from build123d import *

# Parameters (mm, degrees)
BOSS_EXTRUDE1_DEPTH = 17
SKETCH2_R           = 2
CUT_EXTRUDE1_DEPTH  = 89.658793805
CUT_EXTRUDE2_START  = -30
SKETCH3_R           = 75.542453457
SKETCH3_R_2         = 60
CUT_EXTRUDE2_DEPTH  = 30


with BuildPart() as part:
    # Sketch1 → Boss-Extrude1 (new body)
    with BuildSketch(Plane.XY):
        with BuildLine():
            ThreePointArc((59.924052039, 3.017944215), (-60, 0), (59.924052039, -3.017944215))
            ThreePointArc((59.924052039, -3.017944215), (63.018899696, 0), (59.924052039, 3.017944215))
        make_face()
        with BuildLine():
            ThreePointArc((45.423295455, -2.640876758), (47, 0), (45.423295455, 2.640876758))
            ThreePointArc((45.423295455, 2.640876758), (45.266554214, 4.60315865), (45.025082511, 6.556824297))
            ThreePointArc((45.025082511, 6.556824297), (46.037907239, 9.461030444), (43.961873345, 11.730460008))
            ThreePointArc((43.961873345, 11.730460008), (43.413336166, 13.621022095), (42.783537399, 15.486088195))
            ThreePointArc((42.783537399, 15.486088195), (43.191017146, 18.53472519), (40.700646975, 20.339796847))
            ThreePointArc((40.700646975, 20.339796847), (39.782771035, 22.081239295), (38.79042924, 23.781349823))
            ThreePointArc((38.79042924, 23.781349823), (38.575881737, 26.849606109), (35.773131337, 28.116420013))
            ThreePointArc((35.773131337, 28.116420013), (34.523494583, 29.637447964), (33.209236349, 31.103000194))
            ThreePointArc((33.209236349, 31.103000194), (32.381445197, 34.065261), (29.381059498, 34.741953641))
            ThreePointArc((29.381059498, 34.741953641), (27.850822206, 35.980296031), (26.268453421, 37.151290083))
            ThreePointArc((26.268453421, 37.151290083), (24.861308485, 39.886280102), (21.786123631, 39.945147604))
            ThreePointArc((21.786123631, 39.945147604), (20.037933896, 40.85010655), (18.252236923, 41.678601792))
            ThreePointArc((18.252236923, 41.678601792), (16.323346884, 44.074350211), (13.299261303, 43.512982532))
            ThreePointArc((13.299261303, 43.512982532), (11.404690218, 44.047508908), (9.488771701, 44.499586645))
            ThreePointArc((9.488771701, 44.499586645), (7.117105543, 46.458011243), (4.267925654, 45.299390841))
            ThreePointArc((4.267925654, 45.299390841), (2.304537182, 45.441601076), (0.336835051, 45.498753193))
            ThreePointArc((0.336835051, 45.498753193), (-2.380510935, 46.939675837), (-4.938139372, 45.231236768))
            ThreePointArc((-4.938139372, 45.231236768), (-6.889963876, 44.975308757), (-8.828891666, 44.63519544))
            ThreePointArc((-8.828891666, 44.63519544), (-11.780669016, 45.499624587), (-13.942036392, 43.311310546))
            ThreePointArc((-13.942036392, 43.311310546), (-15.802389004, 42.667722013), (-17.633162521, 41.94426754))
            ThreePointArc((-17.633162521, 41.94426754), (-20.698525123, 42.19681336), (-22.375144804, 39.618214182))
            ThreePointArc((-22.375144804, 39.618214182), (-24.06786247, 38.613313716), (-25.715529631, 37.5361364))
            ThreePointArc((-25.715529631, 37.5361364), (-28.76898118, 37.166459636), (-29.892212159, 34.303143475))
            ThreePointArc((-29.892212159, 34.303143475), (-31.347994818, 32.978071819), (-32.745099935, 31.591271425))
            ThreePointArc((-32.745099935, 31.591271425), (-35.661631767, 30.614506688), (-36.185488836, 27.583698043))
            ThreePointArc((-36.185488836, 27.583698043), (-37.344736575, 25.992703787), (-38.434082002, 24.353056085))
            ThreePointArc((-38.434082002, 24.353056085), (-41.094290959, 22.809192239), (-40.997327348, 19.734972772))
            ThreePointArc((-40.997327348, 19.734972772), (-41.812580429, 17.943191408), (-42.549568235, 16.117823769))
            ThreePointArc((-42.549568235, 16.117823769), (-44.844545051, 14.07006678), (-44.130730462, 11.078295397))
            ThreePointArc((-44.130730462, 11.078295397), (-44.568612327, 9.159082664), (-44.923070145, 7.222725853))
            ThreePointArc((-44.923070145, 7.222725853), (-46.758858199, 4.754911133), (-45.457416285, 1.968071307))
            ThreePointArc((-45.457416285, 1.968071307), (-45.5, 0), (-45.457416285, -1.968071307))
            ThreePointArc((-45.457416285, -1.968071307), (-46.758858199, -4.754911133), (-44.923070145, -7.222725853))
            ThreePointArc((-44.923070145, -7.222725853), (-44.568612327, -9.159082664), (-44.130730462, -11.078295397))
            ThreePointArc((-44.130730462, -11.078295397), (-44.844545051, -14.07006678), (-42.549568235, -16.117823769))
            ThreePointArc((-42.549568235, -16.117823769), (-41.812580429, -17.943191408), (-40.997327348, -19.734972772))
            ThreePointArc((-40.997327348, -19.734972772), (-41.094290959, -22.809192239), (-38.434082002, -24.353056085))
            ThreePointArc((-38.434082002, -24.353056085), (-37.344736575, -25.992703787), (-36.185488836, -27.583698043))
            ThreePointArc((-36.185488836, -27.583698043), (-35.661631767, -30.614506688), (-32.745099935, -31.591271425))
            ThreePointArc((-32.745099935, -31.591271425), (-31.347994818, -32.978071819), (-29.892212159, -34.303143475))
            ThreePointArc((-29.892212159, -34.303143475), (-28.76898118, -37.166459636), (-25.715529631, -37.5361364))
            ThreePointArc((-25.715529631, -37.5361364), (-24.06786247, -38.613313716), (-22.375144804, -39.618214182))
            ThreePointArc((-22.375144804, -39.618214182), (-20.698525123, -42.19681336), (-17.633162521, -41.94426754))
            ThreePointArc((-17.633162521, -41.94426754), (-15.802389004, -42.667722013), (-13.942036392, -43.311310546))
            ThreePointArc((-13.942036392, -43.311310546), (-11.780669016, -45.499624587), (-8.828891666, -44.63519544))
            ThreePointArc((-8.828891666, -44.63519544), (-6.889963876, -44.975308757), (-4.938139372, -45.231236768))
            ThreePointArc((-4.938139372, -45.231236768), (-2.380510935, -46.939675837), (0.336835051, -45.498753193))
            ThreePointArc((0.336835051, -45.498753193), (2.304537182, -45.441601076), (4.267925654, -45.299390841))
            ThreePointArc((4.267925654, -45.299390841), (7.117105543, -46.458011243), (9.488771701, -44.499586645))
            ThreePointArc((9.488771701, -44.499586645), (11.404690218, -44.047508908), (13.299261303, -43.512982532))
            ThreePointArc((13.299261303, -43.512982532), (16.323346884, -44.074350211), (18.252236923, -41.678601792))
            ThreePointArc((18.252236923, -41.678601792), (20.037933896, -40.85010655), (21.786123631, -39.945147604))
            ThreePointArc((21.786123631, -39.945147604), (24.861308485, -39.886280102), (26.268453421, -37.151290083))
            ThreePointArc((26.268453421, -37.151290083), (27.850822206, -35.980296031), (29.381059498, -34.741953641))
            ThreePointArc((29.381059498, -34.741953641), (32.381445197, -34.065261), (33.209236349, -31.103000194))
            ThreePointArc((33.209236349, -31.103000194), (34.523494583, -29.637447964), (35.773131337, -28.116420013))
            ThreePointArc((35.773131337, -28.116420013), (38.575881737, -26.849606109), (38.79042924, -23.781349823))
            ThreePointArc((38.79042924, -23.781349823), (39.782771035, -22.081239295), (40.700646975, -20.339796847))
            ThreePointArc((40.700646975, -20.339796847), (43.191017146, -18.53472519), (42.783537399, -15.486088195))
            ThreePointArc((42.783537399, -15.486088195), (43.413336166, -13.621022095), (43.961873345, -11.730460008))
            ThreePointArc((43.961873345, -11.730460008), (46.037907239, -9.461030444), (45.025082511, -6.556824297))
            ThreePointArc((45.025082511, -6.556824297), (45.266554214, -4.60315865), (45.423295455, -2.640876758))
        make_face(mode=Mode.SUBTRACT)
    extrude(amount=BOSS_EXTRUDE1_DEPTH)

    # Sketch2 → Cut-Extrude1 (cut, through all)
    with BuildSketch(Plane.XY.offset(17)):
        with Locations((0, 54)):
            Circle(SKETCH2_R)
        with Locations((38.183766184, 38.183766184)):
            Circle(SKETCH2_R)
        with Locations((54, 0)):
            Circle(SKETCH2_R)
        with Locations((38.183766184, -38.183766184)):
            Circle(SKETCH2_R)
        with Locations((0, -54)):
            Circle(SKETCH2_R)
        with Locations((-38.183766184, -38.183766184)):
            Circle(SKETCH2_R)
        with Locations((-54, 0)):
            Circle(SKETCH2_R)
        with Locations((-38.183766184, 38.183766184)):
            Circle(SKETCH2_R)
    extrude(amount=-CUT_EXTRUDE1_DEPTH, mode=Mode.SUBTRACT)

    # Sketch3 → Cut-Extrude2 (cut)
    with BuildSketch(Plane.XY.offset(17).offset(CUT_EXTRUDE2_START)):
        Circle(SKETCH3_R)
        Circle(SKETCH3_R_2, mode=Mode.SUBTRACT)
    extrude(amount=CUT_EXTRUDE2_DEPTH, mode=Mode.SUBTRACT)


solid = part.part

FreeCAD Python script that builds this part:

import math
import FreeCAD as App
import Part
import Sketcher
from FreeCAD import Vector
Q = App.Units.Quantity

doc = App.newDocument("Part")
params = doc.addObject("Spreadsheet::Sheet", "Params")
for row, (alias, value) in enumerate([
    ("sketch1_radius", "60 mm"),
    ("sketch1_radius2", "3 mm"),
    ("sketch1_radius3", "3 mm"),
    ("sketch1_radius4", "3 mm"),
    ("sketch1_radius5", "3 mm"),
    ("pad1_length", "17 mm"),
    ("sketch2_diameter", "4 mm"),
    ("sketch3_diameter", "120 mm"),
    ("pocket2_length", "30 mm"),
], start=1):
    params.set(f"A{row}", alias)
    params.set(f"B{row}", "=" + value)
    params.setAlias(f"B{row}", alias)

body = doc.addObject("PartDesign::Body", "Body")

sketch1 = body.newObject("Sketcher::SketchObject", "Sketch")
sketch1.AttachmentSupport = (doc.getObject("XY_Plane"), [""])
sketch1.MapMode = "FlatFace"
sketch1.addGeometry(Part.ArcOfCircle(Part.Circle(Vector(0, 0, 0), Vector(0, 0, 1), 60), math.radians(2.883141), math.radians(357.116859)), False)
sketch1.addGeometry(Part.ArcOfCircle(Part.Circle(Vector(60, 0, 0), Vector(0, 0, 1), 3.0189), math.radians(-91.44157), math.radians(91.44157)), False)
sketch1.addGeometry(Part.ArcOfCircle(Part.Circle(Vector(44, 0, 0), Vector(0, 0, 1), 3), math.radians(-61.677638), math.radians(61.677638)), False)
sketch1.addGeometry(Part.ArcOfCircle(Part.Circle(Vector(-0.000001, 0, 0), Vector(0, 0, 1), 45.500001), math.radians(-8.285515), math.radians(-3.327389)), False)
sketch1.addGeometry(Part.ArcOfCircle(Part.Circle(Vector(43.099317, -8.857135, 0), Vector(0, 0, 1), 3), math.radians(-73.290541), math.radians(50.064735)), False)
sketch1.addGeometry(Part.ArcOfCircle(Part.Circle(Vector(0, 0, 0), Vector(0, 0, 1), 45.5), math.radians(-19.898418), math.radians(-14.940292)), False)
sketch1.addGeometry(Part.ArcOfCircle(Part.Circle(Vector(40.434144, -17.351658, 0), Vector(0, 0, 1), 3), math.radians(-84.903444), math.radians(38.451831)), False)
sketch1.addGeometry(Part.ArcOfCircle(Part.Circle(Vector(0, 0, 0), Vector(0, 0, 1), 45.5), math.radians(-31.511321), math.radians(-26.553195)), False)
sketch1.addGeometry(Part.ArcOfCircle(Part.Circle(Vector(36.113591, -25.135801, 0), Vector(0, 0, 1), 3), math.radians(-96.516347), math.radians(26.838928)), False)
sketch1.addGeometry(Part.ArcOfCircle(Part.Circle(Vector(0.000001, 0, 0), Vector(0, 0, 1), 45.499999), math.radians(-43.124224), math.radians(-38.166098)), False)
sketch1.addGeometry(Part.ArcOfCircle(Part.Circle(Vector(30.314544, -31.890883, 0), Vector(0, 0, 1), 3), math.radians(-108.129251), math.radians(15.226025)), False)
sketch1.addGeometry(Part.ArcOfCircle(Part.Circle(Vector(0, 0, 0), Vector(0, 0, 1), 45.5), math.radians(-54.737128), math.radians(-49.779001)), False)
sketch1.addGeometry(Part.ArcOfCircle(Part.Circle(Vector(23.274416, -37.340347, 0), Vector(0, 0, 1), 3), math.radians(-119.742154), math.radians(3.613122)), False)
sketch1.addGeometry(Part.ArcOfCircle(Part.Circle(Vector(0, 0, 0), Vector(0, 0, 1), 45.5), math.radians(-66.350031), math.radians(-61.391905)), False)
sketch1.addGeometry(Part.ArcOfCircle(Part.Circle(Vector(15.281431, -41.261094, 0), Vector(0, 0, 1), 3), math.radians(-131.355057), math.radians(-7.999782)), False)
sketch1.addGeometry(Part.ArcOfCircle(Part.Circle(Vector(0, 0, 0), Vector(0, 0, 1), 45.5), math.radians(-77.962934), math.radians(-73.004808)), False)
sketch1.addGeometry(Part.ArcOfCircle(Part.Circle(Vector(6.662822, -43.492606, 0), Vector(0, 0, 1), 3), math.radians(-142.96796), math.radians(-19.612685)), False)
sketch1.addGeometry(Part.ArcOfCircle(Part.Circle(Vector(0, 0, 0), Vector(0, 0, 1), 45.5), math.radians(-89.575837), math.radians(-84.617711)), False)
sketch1.addGeometry(Part.ArcOfCircle(Part.Circle(Vector(-2.228563, -43.943526, 0), Vector(0, 0, 1), 3), math.radians(-154.580864), math.radians(-31.225588)), False)
sketch1.addGeometry(Part.ArcOfCircle(Part.Circle(Vector(0, 0, 0), Vector(0, 0, 1), 45.5), math.radians(-101.188741), math.radians(-96.230614)), False)
sketch1.addGeometry(Part.ArcOfCircle(Part.Circle(Vector(-11.028711, -42.595393, 0), Vector(0, 0, 1), 3), math.radians(-166.193767), math.radians(-42.838491)), False)
sketch1.addGeometry(Part.ArcOfCircle(Part.Circle(Vector(0, -0.000001, 0), Vector(0, 0, 1), 45.499999), math.radians(-112.801644), math.radians(-107.843518)), False)
sketch1.addGeometry(Part.ArcOfCircle(Part.Circle(Vector(-19.377343, -39.5034, 0), Vector(0, 0, 1), 3), math.radians(-177.80667), math.radians(-54.451394)), False)
sketch1.addGeometry(Part.ArcOfCircle(Part.Circle(Vector(0, 0, 0), Vector(0, 0, 1), 45.5), math.radians(-124.414547), math.radians(-119.456421)), False)
sketch1.addGeometry(Part.ArcOfCircle(Part.Circle(Vector(-26.932663, -34.794132, 0), Vector(0, 0, 1), 3), math.radians(170.580427), math.radians(293.935702)), False)
sketch1.addGeometry(Part.ArcOfCircle(Part.Circle(Vector(0, 0, 0), Vector(0, 0, 1), 45.5), math.radians(-136.02745), math.radians(-131.069324)), False)
sketch1.addGeometry(Part.ArcOfCircle(Part.Circle(Vector(-33.385357, -28.660389, 0), Vector(0, 0, 1), 3), math.radians(158.967524), math.radians(282.322799)), False)
sketch1.addGeometry(Part.ArcOfCircle(Part.Circle(Vector(0, 0, 0), Vector(0, 0, 1), 45.5), math.radians(-147.640353), math.radians(-142.682227)), False)
sketch1.addGeometry(Part.ArcOfCircle(Part.Circle(Vector(-38.471251, -21.353286, 0), Vector(0, 0, 1), 3), math.radians(147.35462), math.radians(270.709896)), False)
sketch1.addGeometry(Part.ArcOfCircle(Part.Circle(Vector(0, 0, 0), Vector(0, 0, 1), 45.5), math.radians(-159.253257), math.radians(-154.29513)), False)
sketch1.addGeometry(Part.ArcOfCircle(Part.Circle(Vector(-41.982127, -13.171977, 0), Vector(0, 0, 1), 3), math.radians(135.741717), math.radians(259.096993)), False)
sketch1.addGeometry(Part.ArcOfCircle(Part.Circle(Vector(0, 0, 0), Vector(0, 0, 1), 45.5), math.radians(-170.86616), math.radians(-165.908034)), False)
sketch1.addGeometry(Part.ArcOfCircle(Part.Circle(Vector(-43.77425, -4.451406, 0), Vector(0, 0, 1), 3), math.radians(124.128814), math.radians(247.484089)), False)
sketch1.addGeometry(Part.ArcOfCircle(Part.Circle(Vector(0, 0, 0), Vector(0, 0, 1), 45.5), math.radians(177.520937), math.radians(182.479063)), False)
sketch1.addGeometry(Part.ArcOfCircle(Part.Circle(Vector(-43.77425, 4.451406, 0), Vector(0, 0, 1), 3), math.radians(112.515911), math.radians(235.871186)), False)
sketch1.addGeometry(Part.ArcOfCircle(Part.Circle(Vector(0, 0, 0), Vector(0, 0, 1), 45.5), math.radians(165.908034), math.radians(170.86616)), False)
sketch1.addGeometry(Part.ArcOfCircle(Part.Circle(Vector(-41.982127, 13.171977, 0), Vector(0, 0, 1), 3), math.radians(100.903007), math.radians(224.258283)), False)
sketch1.addGeometry(Part.ArcOfCircle(Part.Circle(Vector(0, 0, 0), Vector(0, 0, 1), 45.5), math.radians(154.29513), math.radians(159.253257)), False)
sketch1.addGeometry(Part.ArcOfCircle(Part.Circle(Vector(-38.471251, 21.353286, 0), Vector(0, 0, 1), 3), math.radians(89.290104), math.radians(212.64538)), False)
sketch1.addGeometry(Part.ArcOfCircle(Part.Circle(Vector(0, 0, 0), Vector(0, 0, 1), 45.5), math.radians(142.682227), math.radians(147.640353)), False)
sketch1.addGeometry(Part.ArcOfCircle(Part.Circle(Vector(-33.385357, 28.660389, 0), Vector(0, 0, 1), 3), math.radians(77.677201), math.radians(201.032476)), False)
sketch1.addGeometry(Part.ArcOfCircle(Part.Circle(Vector(0, 0, 0), Vector(0, 0, 1), 45.5), math.radians(131.069324), math.radians(136.02745)), False)
sketch1.addGeometry(Part.ArcOfCircle(Part.Circle(Vector(-26.932663, 34.794132, 0), Vector(0, 0, 1), 3), math.radians(66.064298), math.radians(189.419573)), False)
sketch1.addGeometry(Part.ArcOfCircle(Part.Circle(Vector(0, 0, 0), Vector(0, 0, 1), 45.5), math.radians(119.456421), math.radians(124.414547)), False)
sketch1.addGeometry(Part.ArcOfCircle(Part.Circle(Vector(-19.377343, 39.5034, 0), Vector(0, 0, 1), 3), math.radians(54.451394), math.radians(177.80667)), False)
sketch1.addGeometry(Part.ArcOfCircle(Part.Circle(Vector(0, 0.000001, 0), Vector(0, 0, 1), 45.499999), math.radians(107.843518), math.radians(112.801644)), False)
sketch1.addGeometry(Part.ArcOfCircle(Part.Circle(Vector(-11.028711, 42.595393, 0), Vector(0, 0, 1), 3), math.radians(42.838491), math.radians(166.193767)), False)
sketch1.addGeometry(Part.ArcOfCircle(Part.Circle(Vector(0, 0, 0), Vector(0, 0, 1), 45.5), math.radians(96.230614), math.radians(101.188741)), False)
sketch1.addGeometry(Part.ArcOfCircle(Part.Circle(Vector(-2.228563, 43.943526, 0), Vector(0, 0, 1), 3), math.radians(31.225588), math.radians(154.580864)), False)
sketch1.addGeometry(Part.ArcOfCircle(Part.Circle(Vector(0, 0, 0), Vector(0, 0, 1), 45.5), math.radians(84.617711), math.radians(89.575837)), False)
sketch1.addGeometry(Part.ArcOfCircle(Part.Circle(Vector(6.662822, 43.492606, 0), Vector(0, 0, 1), 3), math.radians(19.612685), math.radians(142.96796)), False)
sketch1.addGeometry(Part.ArcOfCircle(Part.Circle(Vector(0, 0, 0), Vector(0, 0, 1), 45.5), math.radians(73.004808), math.radians(77.962934)), False)
sketch1.addGeometry(Part.ArcOfCircle(Part.Circle(Vector(15.281431, 41.261094, 0), Vector(0, 0, 1), 3), math.radians(7.999782), math.radians(131.355057)), False)
sketch1.addGeometry(Part.ArcOfCircle(Part.Circle(Vector(0, 0, 0), Vector(0, 0, 1), 45.5), math.radians(61.391905), math.radians(66.350031)), False)
sketch1.addGeometry(Part.ArcOfCircle(Part.Circle(Vector(23.274416, 37.340347, 0), Vector(0, 0, 1), 3), math.radians(-3.613122), math.radians(119.742154)), False)
sketch1.addGeometry(Part.ArcOfCircle(Part.Circle(Vector(0, 0, 0), Vector(0, 0, 1), 45.5), math.radians(49.779001), math.radians(54.737128)), False)
sketch1.addGeometry(Part.ArcOfCircle(Part.Circle(Vector(30.314544, 31.890883, 0), Vector(0, 0, 1), 3), math.radians(-15.226025), math.radians(108.129251)), False)
sketch1.addGeometry(Part.ArcOfCircle(Part.Circle(Vector(0.000001, 0, 0), Vector(0, 0, 1), 45.499999), math.radians(38.166098), math.radians(43.124224)), False)
sketch1.addGeometry(Part.ArcOfCircle(Part.Circle(Vector(36.113591, 25.135801, 0), Vector(0, 0, 1), 3), math.radians(-26.838928), math.radians(96.516347)), False)
sketch1.addGeometry(Part.ArcOfCircle(Part.Circle(Vector(0, 0, 0), Vector(0, 0, 1), 45.5), math.radians(26.553195), math.radians(31.511321)), False)
sketch1.addGeometry(Part.ArcOfCircle(Part.Circle(Vector(40.434144, 17.351658, 0), Vector(0, 0, 1), 3), math.radians(-38.451831), math.radians(84.903444)), False)
sketch1.addGeometry(Part.ArcOfCircle(Part.Circle(Vector(0, 0, 0), Vector(0, 0, 1), 45.5), math.radians(14.940292), math.radians(19.898418)), False)
sketch1.addGeometry(Part.ArcOfCircle(Part.Circle(Vector(43.099317, 8.857135, 0), Vector(0, 0, 1), 3), math.radians(-50.064735), math.radians(73.290541)), False)
sketch1.addGeometry(Part.ArcOfCircle(Part.Circle(Vector(-0.000001, 0, 0), Vector(0, 0, 1), 45.500001), math.radians(3.327389), math.radians(8.285515)), False)
sketch1.addConstraint(Sketcher.Constraint("Coincident", 0, 1, 1, 2))
sketch1.addConstraint(Sketcher.Constraint("Coincident", 1, 1, 0, 2))
sketch1.addConstraint(Sketcher.Constraint("Coincident", 2, 1, 3, 2))
sketch1.addConstraint(Sketcher.Constraint("Coincident", 3, 1, 4, 2))
sketch1.addConstraint(Sketcher.Constraint("Coincident", 4, 1, 5, 2))
sketch1.addConstraint(Sketcher.Constraint("Coincident", 5, 1, 6, 2))
sketch1.addConstraint(Sketcher.Constraint("Coincident", 6, 1, 7, 2))
sketch1.addConstraint(Sketcher.Constraint("Coincident", 7, 1, 8, 2))
sketch1.addConstraint(Sketcher.Constraint("Coincident", 8, 1, 9, 2))
sketch1.addConstraint(Sketcher.Constraint("Coincident", 9, 1, 10, 2))
sketch1.addConstraint(Sketcher.Constraint("Coincident", 10, 1, 11, 2))
sketch1.addConstraint(Sketcher.Constraint("Coincident", 11, 1, 12, 2))
sketch1.addConstraint(Sketcher.Constraint("Coincident", 12, 1, 13, 2))
sketch1.addConstraint(Sketcher.Constraint("Coincident", 13, 1, 14, 2))
sketch1.addConstraint(Sketcher.Constraint("Coincident", 14, 1, 15, 2))
sketch1.addConstraint(Sketcher.Constraint("Coincident", 15, 1, 16, 2))
sketch1.addConstraint(Sketcher.Constraint("Coincident", 16, 1, 17, 2))
sketch1.addConstraint(Sketcher.Constraint("Coincident", 17, 1, 18, 2))
sketch1.addConstraint(Sketcher.Constraint("Coincident", 18, 1, 19, 2))
sketch1.addConstraint(Sketcher.Constraint("Coincident", 19, 1, 20, 2))
sketch1.addConstraint(Sketcher.Constraint("Coincident", 20, 1, 21, 2))
sketch1.addConstraint(Sketcher.Constraint("Coincident", 21, 1, 22, 2))
sketch1.addConstraint(Sketcher.Constraint("Coincident", 22, 1, 23, 2))
sketch1.addConstraint(Sketcher.Constraint("Coincident", 23, 1, 24, 2))
sketch1.addConstraint(Sketcher.Constraint("Coincident", 24, 1, 25, 2))
sketch1.addConstraint(Sketcher.Constraint("Coincident", 25, 1, 26, 2))
sketch1.addConstraint(Sketcher.Constraint("Coincident", 26, 1, 27, 2))
sketch1.addConstraint(Sketcher.Constraint("Coincident", 27, 1, 28, 2))
sketch1.addConstraint(Sketcher.Constraint("Coincident", 28, 1, 29, 2))
sketch1.addConstraint(Sketcher.Constraint("Coincident", 29, 1, 30, 2))
sketch1.addConstraint(Sketcher.Constraint("Coincident", 30, 1, 31, 2))
sketch1.addConstraint(Sketcher.Constraint("Coincident", 31, 1, 32, 2))
sketch1.addConstraint(Sketcher.Constraint("Coincident", 32, 1, 33, 2))
sketch1.addConstraint(Sketcher.Constraint("Coincident", 33, 1, 34, 2))
sketch1.addConstraint(Sketcher.Constraint("Coincident", 34, 1, 35, 2))
sketch1.addConstraint(Sketcher.Constraint("Coincident", 35, 1, 36, 2))
sketch1.addConstraint(Sketcher.Constraint("Coincident", 36, 1, 37, 2))
sketch1.addConstraint(Sketcher.Constraint("Coincident", 37, 1, 38, 2))
sketch1.addConstraint(Sketcher.Constraint("Coincident", 38, 1, 39, 2))
sketch1.addConstraint(Sketcher.Constraint("Coincident", 39, 1, 40, 2))
sketch1.addConstraint(Sketcher.Constraint("Coincident", 40, 1, 41, 2))
sketch1.addConstraint(Sketcher.Constraint("Coincident", 41, 1, 42, 2))
sketch1.addConstraint(Sketcher.Constraint("Coincident", 42, 1, 43, 2))
sketch1.addConstraint(Sketcher.Constraint("Coincident", 43, 1, 44, 2))
sketch1.addConstraint(Sketcher.Constraint("Coincident", 44, 1, 45, 2))
sketch1.addConstraint(Sketcher.Constraint("Coincident", 45, 1, 46, 2))
sketch1.addConstraint(Sketcher.Constraint("Coincident", 46, 1, 47, 2))
sketch1.addConstraint(Sketcher.Constraint("Coincident", 47, 1, 48, 2))
sketch1.addConstraint(Sketcher.Constraint("Coincident", 48, 1, 49, 2))
sketch1.addConstraint(Sketcher.Constraint("Coincident", 49, 1, 50, 2))
sketch1.addConstraint(Sketcher.Constraint("Coincident", 50, 1, 51, 2))
sketch1.addConstraint(Sketcher.Constraint("Coincident", 51, 1, 52, 2))
sketch1.addConstraint(Sketcher.Constraint("Coincident", 52, 1, 53, 2))
sketch1.addConstraint(Sketcher.Constraint("Coincident", 53, 1, 54, 2))
sketch1.addConstraint(Sketcher.Constraint("Coincident", 54, 1, 55, 2))
sketch1.addConstraint(Sketcher.Constraint("Coincident", 55, 1, 56, 2))
sketch1.addConstraint(Sketcher.Constraint("Coincident", 56, 1, 57, 2))
sketch1.addConstraint(Sketcher.Constraint("Coincident", 57, 1, 58, 2))
sketch1.addConstraint(Sketcher.Constraint("Coincident", 58, 1, 59, 2))
sketch1.addConstraint(Sketcher.Constraint("Coincident", 59, 1, 60, 2))
sketch1.addConstraint(Sketcher.Constraint("Coincident", 60, 1, 61, 2))
sketch1.addConstraint(Sketcher.Constraint("Coincident", 61, 1, 62, 2))
sketch1.addConstraint(Sketcher.Constraint("Coincident", 62, 1, 63, 2))
sketch1.addConstraint(Sketcher.Constraint("Coincident", 63, 1, 2, 2))
sketch1.addConstraint(Sketcher.Constraint("Coincident", 0, 3, -1, 1))
sketch1.addConstraint(Sketcher.Constraint("Coincident", 3, 3, -1, 1))
sketch1.addConstraint(Sketcher.Constraint("Coincident", 5, 3, -1, 1))
sketch1.addConstraint(Sketcher.Constraint("Coincident", 7, 3, -1, 1))
sketch1.addConstraint(Sketcher.Constraint("Coincident", 9, 3, -1, 1))
sketch1.addConstraint(Sketcher.Constraint("Coincident", 11, 3, -1, 1))
sketch1.addConstraint(Sketcher.Constraint("Coincident", 13, 3, -1, 1))
sketch1.addConstraint(Sketcher.Constraint("Coincident", 15, 3, -1, 1))
sketch1.addConstraint(Sketcher.Constraint("Coincident", 17, 3, -1, 1))
sketch1.addConstraint(Sketcher.Constraint("Coincident", 19, 3, -1, 1))
sketch1.addConstraint(Sketcher.Constraint("Coincident", 21, 3, -1, 1))
sketch1.addConstraint(Sketcher.Constraint("Coincident", 23, 3, -1, 1))
sketch1.addConstraint(Sketcher.Constraint("Coincident", 25, 3, -1, 1))
sketch1.addConstraint(Sketcher.Constraint("Coincident", 27, 3, -1, 1))
sketch1.addConstraint(Sketcher.Constraint("Coincident", 29, 3, -1, 1))
sketch1.addConstraint(Sketcher.Constraint("Coincident", 31, 3, -1, 1))
sketch1.addConstraint(Sketcher.Constraint("Coincident", 33, 3, -1, 1))
sketch1.addConstraint(Sketcher.Constraint("Coincident", 35, 3, -1, 1))
sketch1.addConstraint(Sketcher.Constraint("Coincident", 37, 3, -1, 1))
sketch1.addConstraint(Sketcher.Constraint("Coincident", 39, 3, -1, 1))
sketch1.addConstraint(Sketcher.Constraint("Coincident", 41, 3, -1, 1))
sketch1.addConstraint(Sketcher.Constraint("Coincident", 43, 3, -1, 1))
sketch1.addConstraint(Sketcher.Constraint("Coincident", 45, 3, -1, 1))
sketch1.addConstraint(Sketcher.Constraint("Coincident", 47, 3, -1, 1))
sketch1.addConstraint(Sketcher.Constraint("Coincident", 49, 3, -1, 1))
sketch1.addConstraint(Sketcher.Constraint("Coincident", 51, 3, -1, 1))
sketch1.addConstraint(Sketcher.Constraint("Coincident", 53, 3, -1, 1))
sketch1.addConstraint(Sketcher.Constraint("Coincident", 55, 3, -1, 1))
sketch1.addConstraint(Sketcher.Constraint("Coincident", 57, 3, -1, 1))
sketch1.addConstraint(Sketcher.Constraint("Coincident", 59, 3, -1, 1))
sketch1.addConstraint(Sketcher.Constraint("Coincident", 61, 3, -1, 1))
sketch1.addConstraint(Sketcher.Constraint("Coincident", 63, 3, -1, 1))
sketch1.addConstraint(Sketcher.Constraint("PointOnObject", 1, 3, -1))
sketch1.addConstraint(Sketcher.Constraint("PointOnObject", 2, 3, -1))
sketch1.addConstraint(Sketcher.Constraint("Radius", 0, Q("60 mm")))
sketch1.addConstraint(Sketcher.Constraint("Radius", 2, Q("3 mm")))
sketch1.addConstraint(Sketcher.Constraint("Radius", 4, Q("3 mm")))
sketch1.addConstraint(Sketcher.Constraint("Radius", 6, Q("3 mm")))
sketch1.addConstraint(Sketcher.Constraint("Radius", 8, Q("3 mm")))
sketch1.addConstraint(Sketcher.Constraint("Radius", 10, Q("3 mm")))
sketch1.addConstraint(Sketcher.Constraint("Radius", 12, Q("3 mm")))
sketch1.addConstraint(Sketcher.Constraint("Radius", 14, Q("3 mm")))
sketch1.addConstraint(Sketcher.Constraint("Radius", 16, Q("3 mm")))
sketch1.addConstraint(Sketcher.Constraint("Radius", 18, Q("3 mm")))
sketch1.addConstraint(Sketcher.Constraint("Radius", 20, Q("3 mm")))
sketch1.addConstraint(Sketcher.Constraint("Radius", 22, Q("3 mm")))
sketch1.addConstraint(Sketcher.Constraint("Radius", 24, Q("3 mm")))
sketch1.addConstraint(Sketcher.Constraint("Radius", 26, Q("3 mm")))
sketch1.addConstraint(Sketcher.Constraint("Radius", 28, Q("3 mm")))
sketch1.addConstraint(Sketcher.Constraint("Radius", 30, Q("3 mm")))
sketch1.addConstraint(Sketcher.Constraint("Radius", 32, Q("3 mm")))
sketch1.addConstraint(Sketcher.Constraint("Radius", 34, Q("3 mm")))
sketch1.addConstraint(Sketcher.Constraint("Radius", 36, Q("3 mm")))
sketch1.addConstraint(Sketcher.Constraint("Radius", 38, Q("3 mm")))
sketch1.addConstraint(Sketcher.Constraint("Radius", 40, Q("3 mm")))
sketch1.addConstraint(Sketcher.Constraint("Radius", 42, Q("3 mm")))
sketch1.addConstraint(Sketcher.Constraint("Radius", 44, Q("3 mm")))
sketch1.addConstraint(Sketcher.Constraint("Radius", 46, Q("3 mm")))
sketch1.addConstraint(Sketcher.Constraint("Radius", 48, Q("3 mm")))
sketch1.addConstraint(Sketcher.Constraint("Radius", 50, Q("3 mm")))
sketch1.addConstraint(Sketcher.Constraint("Radius", 52, Q("3 mm")))
sketch1.addConstraint(Sketcher.Constraint("Radius", 54, Q("3 mm")))
sketch1.addConstraint(Sketcher.Constraint("Radius", 56, Q("3 mm")))
sketch1.addConstraint(Sketcher.Constraint("Radius", 58, Q("3 mm")))
sketch1.addConstraint(Sketcher.Constraint("Radius", 60, Q("3 mm")))
sketch1.addConstraint(Sketcher.Constraint("Radius", 62, Q("3 mm")))
sketch1.addConstraint(Sketcher.Constraint("Radius", 3, Q("45.500001 mm")))
sketch1.addConstraint(Sketcher.Constraint("Radius", 5, Q("45.5 mm")))
sketch1.addConstraint(Sketcher.Constraint("Radius", 7, Q("45.5 mm")))
sketch1.addConstraint(Sketcher.Constraint("Radius", 9, Q("45.499999 mm")))
sketch1.addConstraint(Sketcher.Constraint("Radius", 11, Q("45.5 mm")))
sketch1.addConstraint(Sketcher.Constraint("Radius", 13, Q("45.5 mm")))
sketch1.addConstraint(Sketcher.Constraint("Radius", 15, Q("45.5 mm")))
sketch1.addConstraint(Sketcher.Constraint("Radius", 17, Q("45.5 mm")))
sketch1.addConstraint(Sketcher.Constraint("Radius", 19, Q("45.5 mm")))
sketch1.addConstraint(Sketcher.Constraint("Radius", 21, Q("45.499999 mm")))
sketch1.addConstraint(Sketcher.Constraint("Radius", 23, Q("45.5 mm")))
sketch1.addConstraint(Sketcher.Constraint("Radius", 25, Q("45.5 mm")))
sketch1.addConstraint(Sketcher.Constraint("Radius", 27, Q("45.5 mm")))
sketch1.addConstraint(Sketcher.Constraint("Radius", 29, Q("45.5 mm")))
sketch1.addConstraint(Sketcher.Constraint("Radius", 31, Q("45.5 mm")))
sketch1.addConstraint(Sketcher.Constraint("Radius", 33, Q("45.5 mm")))
sketch1.addConstraint(Sketcher.Constraint("Radius", 35, Q("45.5 mm")))
sketch1.addConstraint(Sketcher.Constraint("Radius", 37, Q("45.5 mm")))
sketch1.addConstraint(Sketcher.Constraint("Radius", 39, Q("45.5 mm")))
sketch1.addConstraint(Sketcher.Constraint("Radius", 41, Q("45.5 mm")))
sketch1.addConstraint(Sketcher.Constraint("Radius", 43, Q("45.5 mm")))
sketch1.addConstraint(Sketcher.Constraint("Radius", 45, Q("45.499999 mm")))
sketch1.addConstraint(Sketcher.Constraint("Radius", 47, Q("45.5 mm")))
sketch1.addConstraint(Sketcher.Constraint("Radius", 49, Q("45.5 mm")))
sketch1.addConstraint(Sketcher.Constraint("Radius", 51, Q("45.5 mm")))
sketch1.addConstraint(Sketcher.Constraint("Radius", 53, Q("45.5 mm")))
sketch1.addConstraint(Sketcher.Constraint("Radius", 55, Q("45.5 mm")))
sketch1.addConstraint(Sketcher.Constraint("Radius", 57, Q("45.499999 mm")))
sketch1.addConstraint(Sketcher.Constraint("Radius", 59, Q("45.5 mm")))
sketch1.addConstraint(Sketcher.Constraint("Radius", 61, Q("45.5 mm")))
sketch1.addConstraint(Sketcher.Constraint("Radius", 63, Q("45.500001 mm")))
sketch1.addConstraint(Sketcher.Constraint("DistanceX", -1, 1, 1, 3, Q("60 mm")))
sketch1.addConstraint(Sketcher.Constraint("DistanceX", -1, 1, 2, 3, Q("44 mm")))
sketch1.addConstraint(Sketcher.Constraint("Radius", 1, Q("3.0189 mm")))
sketch1.addConstraint(Sketcher.Constraint("DistanceY", 9, 1, -1, 1, Q("31.103 mm")))
sketch1.addConstraint(Sketcher.Constraint("DistanceY", -1, 1, 56, 1, Q("31.103 mm")))
sketch1.addConstraint(Sketcher.Constraint("DistanceY", 8, 3, -1, 1, Q("25.135801 mm")))
sketch1.addConstraint(Sketcher.Constraint("DistanceY", 22, 3, -1, 1, Q("39.5034 mm")))
sketch1.addConstraint(Sketcher.Constraint("DistanceY", -1, 1, 44, 3, Q("39.5034 mm")))
sketch1.addConstraint(Sketcher.Constraint("DistanceY", -1, 1, 58, 3, Q("25.135801 mm")))
sketch1.addConstraint(Sketcher.Constraint("DistanceY", 13, 1, -1, 1, Q("41.678602 mm")))
sketch1.addConstraint(Sketcher.Constraint("DistanceX", 25, 1, -1, 1, Q("32.7451 mm")))
sketch1.addConstraint(Sketcher.Constraint("DistanceY", 26, 1, -1, 1, Q("27.583698 mm")))
sketch1.addConstraint(Sketcher.Constraint("DistanceY", -1, 1, 39, 1, Q("27.583698 mm")))
sketch1.addConstraint(Sketcher.Constraint("DistanceX", 40, 1, -1, 1, Q("32.7451 mm")))
sketch1.addConstraint(Sketcher.Constraint("DistanceY", -1, 1, 52, 1, Q("41.678602 mm")))
sketch1.addConstraint(Sketcher.Constraint("DistanceX", -1, 1, 8, 3, Q("36.113591 mm")))
sketch1.addConstraint(Sketcher.Constraint("DistanceX", -1, 1, 14, 3, Q("15.281431 mm")))
sketch1.addConstraint(Sketcher.Constraint("DistanceX", 20, 3, -1, 1, Q("11.028711 mm")))
sketch1.addConstraint(Sketcher.Constraint("DistanceX", 28, 3, -1, 1, Q("38.471251 mm")))
sketch1.addConstraint(Sketcher.Constraint("DistanceX", 32, 3, -1, 1, Q("43.77425 mm")))
sketch1.addConstraint(Sketcher.Constraint("DistanceX", 34, 3, -1, 1, Q("43.77425 mm")))
sketch1.addConstraint(Sketcher.Constraint("DistanceX", 38, 3, -1, 1, Q("38.471251 mm")))
sketch1.addConstraint(Sketcher.Constraint("DistanceX", 46, 3, -1, 1, Q("11.028711 mm")))
sketch1.addConstraint(Sketcher.Constraint("DistanceX", -1, 1, 52, 3, Q("15.281431 mm")))
sketch1.addConstraint(Sketcher.Constraint("DistanceX", -1, 1, 58, 3, Q("36.113591 mm")))
sketch1.addConstraint(Sketcher.Constraint("DistanceY", 4, 1, -1, 1, Q("11.73046 mm")))
sketch1.addConstraint(Sketcher.Constraint("DistanceY", 5, 1, -1, 1, Q("15.486088 mm")))
sketch1.addConstraint(Sketcher.Constraint("DistanceX", -1, 1, 10, 1, Q("29.381059 mm")))
sketch1.addConstraint(Sketcher.Constraint("DistanceY", 11, 1, -1, 1, Q("37.15129 mm")))
sketch1.addConstraint(Sketcher.Constraint("DistanceX", -1, 1, 15, 1, Q("9.488772 mm")))
sketch1.addConstraint(Sketcher.Constraint("DistanceY", 16, 1, -1, 1, Q("45.299391 mm")))
sketch1.addConstraint(Sketcher.Constraint("DistanceX", 18, 1, -1, 1, Q("4.938139 mm")))
sketch1.addConstraint(Sketcher.Constraint("DistanceX", 19, 1, -1, 1, Q("8.828892 mm")))
sketch1.addConstraint(Sketcher.Constraint("DistanceX", 23, 1, -1, 1, Q("25.71553 mm")))
sketch1.addConstraint(Sketcher.Constraint("DistanceX", 29, 1, -1, 1, Q("42.549568 mm")))
sketch1.addConstraint(Sketcher.Constraint("DistanceX", 30, 1, -1, 1, Q("44.13073 mm")))
sketch1.addConstraint(Sketcher.Constraint("DistanceX", 31, 1, -1, 1, Q("44.92307 mm")))
sketch1.addConstraint(Sketcher.Constraint("DistanceY", -1, 1, 33, 1, Q("1.968071 mm")))
sketch1.addConstraint(Sketcher.Constraint("DistanceX", 35, 1, -1, 1, Q("44.13073 mm")))
sketch1.addConstraint(Sketcher.Constraint("DistanceX", 36, 1, -1, 1, Q("42.549568 mm")))
sketch1.addConstraint(Sketcher.Constraint("DistanceX", 42, 1, -1, 1, Q("25.71553 mm")))
sketch1.addConstraint(Sketcher.Constraint("DistanceY", -1, 1, 45, 1, Q("43.311311 mm")))
sketch1.addConstraint(Sketcher.Constraint("DistanceX", 47, 1, -1, 1, Q("4.938139 mm")))
sketch1.addConstraint(Sketcher.Constraint("DistanceY", -1, 1, 49, 1, Q("45.299391 mm")))
sketch1.addConstraint(Sketcher.Constraint("DistanceX", -1, 1, 50, 1, Q("9.488772 mm")))
sketch1.addConstraint(Sketcher.Constraint("DistanceY", -1, 1, 54, 1, Q("37.15129 mm")))
sketch1.addConstraint(Sketcher.Constraint("DistanceX", -1, 1, 55, 1, Q("29.381059 mm")))
sketch1.addConstraint(Sketcher.Constraint("DistanceY", -1, 1, 60, 1, Q("15.486088 mm")))
sketch1.addConstraint(Sketcher.Constraint("DistanceY", -1, 1, 61, 1, Q("11.73046 mm")))
sketch1.addConstraint(Sketcher.Constraint("DistanceX", -1, 1, 4, 3, Q("43.099317 mm")))
sketch1.addConstraint(Sketcher.Constraint("DistanceX", -1, 1, 6, 3, Q("40.434144 mm")))
sketch1.addConstraint(Sketcher.Constraint("DistanceX", -1, 1, 12, 3, Q("23.274416 mm")))
sketch1.addConstraint(Sketcher.Constraint("DistanceX", 18, 3, -1, 1, Q("2.228563 mm")))
sketch1.addConstraint(Sketcher.Constraint("DistanceX", 22, 3, -1, 1, Q("19.377343 mm")))
sketch1.addConstraint(Sketcher.Constraint("DistanceX", 24, 3, -1, 1, Q("26.932663 mm")))
sketch1.addConstraint(Sketcher.Constraint("DistanceY", 28, 3, -1, 1, Q("21.353286 mm")))
sketch1.addConstraint(Sketcher.Constraint("DistanceY", -1, 1, 38, 3, Q("21.353286 mm")))
sketch1.addConstraint(Sketcher.Constraint("DistanceX", 42, 3, -1, 1, Q("26.932663 mm")))
sketch1.addConstraint(Sketcher.Constraint("DistanceX", 44, 3, -1, 1, Q("19.377343 mm")))
sketch1.addConstraint(Sketcher.Constraint("DistanceX", 48, 3, -1, 1, Q("2.228563 mm")))
sketch1.addConstraint(Sketcher.Constraint("DistanceX", -1, 1, 54, 3, Q("23.274416 mm")))
sketch1.addConstraint(Sketcher.Constraint("DistanceX", -1, 1, 60, 3, Q("40.434144 mm")))
sketch1.addConstraint(Sketcher.Constraint("DistanceX", -1, 1, 62, 3, Q("43.099317 mm")))
sketch1.setExpression("Constraints[98]", "Params.sketch1_radius")
sketch1.setExpression("Constraints[99]", "Params.sketch1_radius2")
sketch1.setExpression("Constraints[100]", "Params.sketch1_radius3")
sketch1.setExpression("Constraints[101]", "Params.sketch1_radius4")
sketch1.setExpression("Constraints[102]", "Params.sketch1_radius5")
pad1 = body.newObject("PartDesign::Pad", "Pad")
pad1.Profile = sketch1
pad1.setExpression("Length", "Params.pad1_length")

sketch2 = body.newObject("Sketcher::SketchObject", "Sketch001")
sketch2.AttachmentSupport = (doc.getObject("XY_Plane"), [""])
sketch2.MapMode = "FlatFace"
sketch2.AttachmentOffset = App.Placement(Vector(0, 0, 17), App.Rotation())
sketch2.addGeometry(Part.Circle(Vector(0, 54, 0), Vector(0, 0, 1), 2), False)
sketch2.addGeometry(Part.Circle(Vector(38.2, 38.2, 0), Vector(0, 0, 1), 2), False)
sketch2.addGeometry(Part.Circle(Vector(54, 0, 0), Vector(0, 0, 1), 2), False)
sketch2.addGeometry(Part.Circle(Vector(38.2, -38.2, 0), Vector(0, 0, 1), 2), False)
sketch2.addGeometry(Part.Circle(Vector(0, -54, 0), Vector(0, 0, 1), 2), False)
sketch2.addGeometry(Part.Circle(Vector(-38.2, -38.2, 0), Vector(0, 0, 1), 2), False)
sketch2.addGeometry(Part.Circle(Vector(-54, 0, 0), Vector(0, 0, 1), 2), False)
sketch2.addGeometry(Part.Circle(Vector(-38.2, 38.2, 0), Vector(0, 0, 1), 2), False)
sketch2.addConstraint(Sketcher.Constraint("Equal", 0, 1))
sketch2.addConstraint(Sketcher.Constraint("Equal", 1, 2))
sketch2.addConstraint(Sketcher.Constraint("Equal", 2, 3))
sketch2.addConstraint(Sketcher.Constraint("Equal", 3, 4))
sketch2.addConstraint(Sketcher.Constraint("Equal", 4, 5))
sketch2.addConstraint(Sketcher.Constraint("Equal", 5, 6))
sketch2.addConstraint(Sketcher.Constraint("Equal", 6, 7))
sketch2.addConstraint(Sketcher.Constraint("Symmetric", 0, 3, 4, 3, -1, 1))
sketch2.addConstraint(Sketcher.Constraint("Symmetric", 1, 3, 5, 3, -1, 1))
sketch2.addConstraint(Sketcher.Constraint("Symmetric", 2, 3, 6, 3, -1, 1))
sketch2.addConstraint(Sketcher.Constraint("Symmetric", 3, 3, 7, 3, -1, 1))
sketch2.addConstraint(Sketcher.Constraint("Symmetric", 3, 3, 5, 3, -2))
sketch2.addConstraint(Sketcher.Constraint("PointOnObject", 0, 3, -2))
sketch2.addConstraint(Sketcher.Constraint("PointOnObject", 2, 3, -1))
sketch2.addConstraint(Sketcher.Constraint("Diameter", 0, Q("4 mm")))
sketch2.addConstraint(Sketcher.Constraint("DistanceY", -1, 1, 0, 3, Q("54 mm")))
sketch2.addConstraint(Sketcher.Constraint("DistanceX", -1, 1, 2, 3, Q("54 mm")))
sketch2.addConstraint(Sketcher.Constraint("DistanceX", -1, 1, 1, 3, Q("38.183766 mm")))
sketch2.addConstraint(Sketcher.Constraint("DistanceY", -1, 1, 1, 3, Q("38.183766 mm")))
sketch2.setExpression("Constraints[14]", "Params.sketch2_diameter")
pocket1 = body.newObject("PartDesign::Pocket", "Pocket")
pocket1.Profile = sketch2
pocket1.Type = "ThroughAll"

sketch3 = body.newObject("Sketcher::SketchObject", "Sketch002")
sketch3.AttachmentSupport = (doc.getObject("XY_Plane"), [""])
sketch3.MapMode = "FlatFace"
sketch3.AttachmentOffset = App.Placement(Vector(0, 0, -13), App.Rotation())
sketch3.addGeometry(Part.Circle(Vector(0, 0, 0), Vector(0, 0, 1), 76), False)
sketch3.addGeometry(Part.Circle(Vector(0, 0, 0), Vector(0, 0, 1), 60), False)
sketch3.addConstraint(Sketcher.Constraint("Coincident", 0, 3, -1, 1))
sketch3.addConstraint(Sketcher.Constraint("Coincident", 1, 3, -1, 1))
sketch3.addConstraint(Sketcher.Constraint("Diameter", 1, Q("120 mm")))
sketch3.addConstraint(Sketcher.Constraint("Diameter", 0, Q("151.084907 mm")))
sketch3.setExpression("Constraints[2]", "Params.sketch3_diameter")
pocket2 = body.newObject("PartDesign::Pocket", "Pocket001")
pocket2.Profile = sketch3
pocket2.setExpression("Length", "Params.pocket2_length")
pocket2.Reversed = True

doc.recompute()
